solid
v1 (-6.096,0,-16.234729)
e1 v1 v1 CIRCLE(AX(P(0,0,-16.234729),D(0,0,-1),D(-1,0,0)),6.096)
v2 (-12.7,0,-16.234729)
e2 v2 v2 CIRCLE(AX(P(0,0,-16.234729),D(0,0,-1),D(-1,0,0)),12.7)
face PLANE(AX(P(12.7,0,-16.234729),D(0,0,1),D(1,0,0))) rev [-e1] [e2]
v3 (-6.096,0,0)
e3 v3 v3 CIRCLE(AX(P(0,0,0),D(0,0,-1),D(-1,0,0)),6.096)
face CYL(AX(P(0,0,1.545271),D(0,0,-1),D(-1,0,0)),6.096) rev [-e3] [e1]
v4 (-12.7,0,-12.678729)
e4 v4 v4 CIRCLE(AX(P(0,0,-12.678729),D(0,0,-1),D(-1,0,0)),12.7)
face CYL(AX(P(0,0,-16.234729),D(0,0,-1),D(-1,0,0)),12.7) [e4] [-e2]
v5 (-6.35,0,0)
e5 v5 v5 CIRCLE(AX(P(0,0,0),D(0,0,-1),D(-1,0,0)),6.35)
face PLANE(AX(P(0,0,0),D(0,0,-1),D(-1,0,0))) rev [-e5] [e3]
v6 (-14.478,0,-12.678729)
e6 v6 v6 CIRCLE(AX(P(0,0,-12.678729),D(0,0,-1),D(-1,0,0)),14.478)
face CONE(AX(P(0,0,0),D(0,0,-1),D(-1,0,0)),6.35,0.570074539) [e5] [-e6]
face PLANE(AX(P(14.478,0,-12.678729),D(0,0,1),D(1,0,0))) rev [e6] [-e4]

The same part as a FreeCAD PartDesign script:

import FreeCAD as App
import Part
import Sketcher
Q = App.Units.Quantity


def add_polygon(sketch, points):
    """Adds a closed chain of lines whose ends are joined by coincident constraints."""
    first, n = sketch.GeometryCount, len(points)
    for a, b in zip(points, points[1:] + points[:1]):
        sketch.addGeometry(Part.LineSegment(App.Vector(*a, 0), App.Vector(*b, 0)), False)
    for i in range(n):
        sketch.addConstraint(Sketcher.Constraint("Coincident", first + i, 2, first + (i + 1) % n, 1))

doc = App.newDocument("Part")
body = doc.addObject("PartDesign::Body", "Body")

# Sketch on XZ plane
sketch1 = body.newObject("Sketcher::SketchObject", "Sketch")
sketch1.AttachmentSupport = (doc.getObject("XZ_Plane"), [""])
sketch1.MapMode = "FlatFace"
add_polygon(sketch1, [(0, 0), (6.3, 0), (14.5, -12.7), (12.7, -12.7), (12.7, -16.2), (0, -16.2)])  # lines 0-5
sketch1.addConstraint([
    Sketcher.Constraint("Horizontal", 0),
    Sketcher.Constraint("Horizontal", 2),
    Sketcher.Constraint("Vertical", 3),
    Sketcher.Constraint("Horizontal", 4),
    Sketcher.Constraint("Vertical", 5),
    Sketcher.Constraint("Coincident", 5, 2, -1, 1),
    Sketcher.Constraint("DistanceX", 4, 2, 4, 1, Q("0.5 in")),
    Sketcher.Constraint("DistanceX", 0, 1, 0, 2, Q("0.25 in")),
    Sketcher.Constraint("DistanceX", 2, 2, 2, 1, Q("0.07 in")),
    Sketcher.Constraint("DistanceY", 3, 2, 3, 1, Q("0.14 in")),
    Sketcher.Constraint("DistanceY", 5, 1, 5, 2, 16.234729),
])
revolution = body.newObject("PartDesign::Revolution", "Revolution")
revolution.Profile = sketch1
revolution.ReferenceAxis = (sketch1, ["V_Axis"])
revolution.Angle = 360

# Sketch on XY plane
sketch2 = body.newObject("Sketcher::SketchObject", "Sketch001")
sketch2.AttachmentSupport = (doc.getObject("XY_Plane"), [""])
sketch2.MapMode = "FlatFace"
sketch2.AttachmentOffset = App.Placement(App.Vector(0, 0, -16.234729), App.Rotation())
sketch2.addGeometry(Part.Circle(App.Vector(0, 0, 0), App.Vector(0, 0, 1), 6), False)
sketch2.addConstraint([
    Sketcher.Constraint("Coincident", 0, 3, -1, 1),
    Sketcher.Constraint("Diameter", 0, Q("0.48 in")),
])
pocket1 = body.newObject("PartDesign::Pocket", "Pocket")
pocket1.Profile = sketch2
pocket1.Length = Q("0.7 in")
pocket1.Reversed = True

doc.recompute()
